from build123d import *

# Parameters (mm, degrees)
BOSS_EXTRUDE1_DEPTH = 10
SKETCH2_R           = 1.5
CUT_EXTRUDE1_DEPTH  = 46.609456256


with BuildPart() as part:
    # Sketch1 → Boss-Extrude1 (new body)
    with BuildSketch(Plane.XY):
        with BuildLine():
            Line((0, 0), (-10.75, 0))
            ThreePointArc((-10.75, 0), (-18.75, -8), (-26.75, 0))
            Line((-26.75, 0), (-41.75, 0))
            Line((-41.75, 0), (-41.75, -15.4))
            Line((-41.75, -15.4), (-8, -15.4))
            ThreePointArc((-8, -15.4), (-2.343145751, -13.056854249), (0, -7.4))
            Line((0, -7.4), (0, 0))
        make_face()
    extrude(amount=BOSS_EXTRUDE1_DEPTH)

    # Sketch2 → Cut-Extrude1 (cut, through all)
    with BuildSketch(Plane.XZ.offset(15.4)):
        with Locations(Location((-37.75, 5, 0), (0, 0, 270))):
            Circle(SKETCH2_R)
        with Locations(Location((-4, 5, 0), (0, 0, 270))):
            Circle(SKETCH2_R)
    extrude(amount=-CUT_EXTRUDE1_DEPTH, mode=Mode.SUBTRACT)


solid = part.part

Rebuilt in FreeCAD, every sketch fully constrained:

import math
import FreeCAD as App
import Part
import Sketcher
from FreeCAD import Vector

doc = App.newDocument("Part")
body = doc.addObject("PartDesign::Body", "Body")

# Sketch on XY plane
sketch1 = body.newObject("Sketcher::SketchObject", "Sketch")
sketch1.AttachmentSupport = (doc.getObject("XY_Plane"), [""])
sketch1.MapMode = "FlatFace"
sketch1.addGeometry(Part.LineSegment(Vector(0, 0, 0), Vector(-11, 0, 0)), False)
sketch1.addGeometry(Part.ArcOfCircle(Part.Circle(Vector(-19, 0, 0), Vector(0, 0, 1), 8), math.radians(180), math.radians(360)), False)
sketch1.addGeometry(Part.LineSegment(Vector(-27, 0, 0), Vector(-42, 0, 0)), False)
sketch1.addGeometry(Part.LineSegment(Vector(-42, 0, 0), Vector(-42, -15, 0)), False)
sketch1.addGeometry(Part.LineSegment(Vector(-42, -15, 0), Vector(-8, -15, 0)), False)
sketch1.addGeometry(Part.ArcOfCircle(Part.Circle(Vector(-8, -7, 0), Vector(0, 0, 1), 8), math.radians(-90), math.radians(0)), False)
sketch1.addGeometry(Part.LineSegment(Vector(0, -7, 0), Vector(0, 0, 0)), False)
sketch1.addConstraint(Sketcher.Constraint("Coincident", 0, 2, 1, 2))
sketch1.addConstraint(Sketcher.Constraint("Coincident", 1, 1, 2, 1))
sketch1.addConstraint(Sketcher.Constraint("Coincident", 2, 2, 3, 1))
sketch1.addConstraint(Sketcher.Constraint("Coincident", 3, 2, 4, 1))
sketch1.addConstraint(Sketcher.Constraint("Tangent", 4, 2, 5, 1))
sketch1.addConstraint(Sketcher.Constraint("Tangent", 5, 2, 6, 1))
sketch1.addConstraint(Sketcher.Constraint("Coincident", 6, 2, 0, 1))
sketch1.addConstraint(Sketcher.Constraint("Horizontal", 0))
sketch1.addConstraint(Sketcher.Constraint("Horizontal", 2))
sketch1.addConstraint(Sketcher.Constraint("Vertical", 3))
sketch1.addConstraint(Sketcher.Constraint("Horizontal", 4))
sketch1.addConstraint(Sketcher.Constraint("Vertical", 6))
sketch1.addConstraint(Sketcher.Constraint("Coincident", 6, 2, -1, 1))
sketch1.addConstraint(Sketcher.Constraint("Equal", 1, 5))
sketch1.addConstraint(Sketcher.Constraint("PointOnObject", 1, 3, -1))
sketch1.addConstraint(Sketcher.Constraint("PointOnObject", 1, 1, -1))
sketch1.addConstraint(Sketcher.Constraint("Radius", 1, 8.0))
sketch1.addConstraint(Sketcher.Constraint("DistanceX", 2, 2, 2, 1, 15.0))
sketch1.addConstraint(Sketcher.Constraint("DistanceY", 3, 2, 3, 1, 15.4))
sketch1.addConstraint(Sketcher.Constraint("DistanceX", 0, 2, 0, 1, 10.75))
pad1 = body.newObject("PartDesign::Pad", "Pad")
pad1.Profile = sketch1
pad1.Length = 10

# Sketch on XZ plane
sketch2 = body.newObject("Sketcher::SketchObject", "Sketch001")
sketch2.AttachmentSupport = (doc.getObject("XZ_Plane"), [""])
sketch2.MapMode = "FlatFace"
sketch2.AttachmentOffset = App.Placement(Vector(0, 0, 15.4), App.Rotation())
sketch2.addGeometry(Part.Circle(Vector(-37.8, 5, 0), Vector(0, 0, 1), 1.5), False)
sketch2.addGeometry(Part.Circle(Vector(-4, 5, 0), Vector(0, 0, 1), 1.5), False)
sketch2.addConstraint(Sketcher.Constraint("Equal", 0, 1))
sketch2.addConstraint(Sketcher.Constraint("Horizontal", 0, 3, 1, 3))
sketch2.addConstraint(Sketcher.Constraint("Diameter", 0, 3.0))
sketch2.addConstraint(Sketcher.Constraint("DistanceY", -1, 1, 0, 3, 5.0))
sketch2.addConstraint(Sketcher.Constraint("DistanceX", 1, 3, -1, 1, 4.0))
sketch2.addConstraint(Sketcher.Constraint("DistanceX", 0, 3, -1, 1, 37.75))
pocket1 = body.newObject("PartDesign::Pocket", "Pocket")
pocket1.Profile = sketch2
pocket1.Type = "ThroughAll"

doc.recompute()
